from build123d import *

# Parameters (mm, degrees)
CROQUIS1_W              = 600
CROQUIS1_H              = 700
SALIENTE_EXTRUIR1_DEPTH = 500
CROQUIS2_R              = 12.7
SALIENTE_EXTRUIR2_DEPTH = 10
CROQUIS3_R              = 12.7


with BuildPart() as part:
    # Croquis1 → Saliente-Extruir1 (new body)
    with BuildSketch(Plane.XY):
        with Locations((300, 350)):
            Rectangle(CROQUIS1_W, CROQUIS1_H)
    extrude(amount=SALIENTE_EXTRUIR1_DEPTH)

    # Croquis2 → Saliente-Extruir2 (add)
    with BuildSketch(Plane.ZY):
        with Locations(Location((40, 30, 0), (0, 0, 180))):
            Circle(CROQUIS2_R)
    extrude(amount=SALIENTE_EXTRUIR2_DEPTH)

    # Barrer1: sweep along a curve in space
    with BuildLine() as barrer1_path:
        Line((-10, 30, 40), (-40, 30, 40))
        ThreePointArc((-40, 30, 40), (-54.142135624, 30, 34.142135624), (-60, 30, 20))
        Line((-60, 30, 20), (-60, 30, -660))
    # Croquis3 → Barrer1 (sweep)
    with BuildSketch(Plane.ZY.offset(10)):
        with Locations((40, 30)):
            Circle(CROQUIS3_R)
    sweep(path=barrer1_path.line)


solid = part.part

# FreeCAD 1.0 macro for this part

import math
import FreeCAD as App
import Part
import Sketcher
Q = App.Units.Quantity

doc = App.newDocument("Part")
params = doc.addObject("Spreadsheet::Sheet", "Params")
for row, (alias, value) in enumerate([
    ("sketch1_width", "600 mm"),
    ("sketch1_height", "700 mm"),
    ("pad1_length", "500 mm"),
    ("sketch2_diameter", "25.4 mm"),
    ("pad2_length", "10 mm"),
    ("sketch3_diameter", "25.4 mm"),
    ("sketch4_radius", "20 mm"),
    ("sketch4_width", "30 mm"),
    ("sketch4_height", "680 mm"),
], start=1):
    params.set(f"A{row}", alias)
    params.set(f"B{row}", "=" + value)
    params.setAlias(f"B{row}", alias)

body = doc.addObject("PartDesign::Body", "Body")

sketch1 = body.newObject("Sketcher::SketchObject", "Sketch")
sketch1.AttachmentSupport = (doc.getObject("XY_Plane"), [""])
sketch1.MapMode = "FlatFace"
sketch1.addGeometry([
    Part.LineSegment(App.Vector(0, 700, 0), App.Vector(0, 0, 0)),
    Part.LineSegment(App.Vector(0, 0, 0), App.Vector(600, 0, 0)),
    Part.LineSegment(App.Vector(600, 0, 0), App.Vector(600, 700, 0)),
    Part.LineSegment(App.Vector(600, 700, 0), App.Vector(0, 700, 0)),
], False)
sketch1.addConstraint([
    Sketcher.Constraint("Coincident", 0, 2, 1, 1),
    Sketcher.Constraint("Coincident", 1, 2, 2, 1),
    Sketcher.Constraint("Coincident", 2, 2, 3, 1),
    Sketcher.Constraint("Coincident", 3, 2, 0, 1),
    Sketcher.Constraint("Vertical", 0),
    Sketcher.Constraint("Horizontal", 1),
    Sketcher.Constraint("Vertical", 2),
    Sketcher.Constraint("Horizontal", 3),
    Sketcher.Constraint("Coincident", 0, 2, -1, 1),
    Sketcher.Constraint("DistanceX", 1, 1, 1, 2, Q("600 mm")),
    Sketcher.Constraint("DistanceY", 0, 2, 0, 1, Q("700 mm")),
])
sketch1.setExpression("Constraints[9]", "Params.sketch1_width")
sketch1.setExpression("Constraints[10]", "Params.sketch1_height")
pad1 = body.newObject("PartDesign::Pad", "Pad")
pad1.Profile = sketch1
pad1.setExpression("Length", "Params.pad1_length")

sketch2 = body.newObject("Sketcher::SketchObject", "Sketch001")
sketch2.AttachmentSupport = (doc.getObject("YZ_Plane"), [""])
sketch2.MapMode = "FlatFace"
sketch2.addGeometry(Part.Circle(App.Vector(30, 40, 0), App.Vector(0, 0, 1), 12.7), False)
sketch2.addConstraint([
    Sketcher.Constraint("Diameter", 0, Q("25.4 mm")),
    Sketcher.Constraint("DistanceX", -1, 1, 0, 3, Q("30 mm")),
    Sketcher.Constraint("DistanceY", -1, 1, 0, 3, Q("40 mm")),
])
sketch2.setExpression("Constraints[0]", "Params.sketch2_diameter")
pad2 = body.newObject("PartDesign::Pad", "Pad001")
pad2.Profile = sketch2
pad2.setExpression("Length", "Params.pad2_length")
pad2.Reversed = True

sketch3 = body.newObject("Sketcher::SketchObject", "Sketch002")
sketch3.AttachmentSupport = (doc.getObject("YZ_Plane"), [""])
sketch3.MapMode = "FlatFace"
sketch3.AttachmentOffset = App.Placement(App.Vector(0, 0, -10), App.Rotation())
sketch3.addGeometry(Part.Circle(App.Vector(30, 40, 0), App.Vector(0, 0, 1), 12.7), False)
sketch3.addConstraint([
    Sketcher.Constraint("Diameter", 0, Q("25.4 mm")),
    Sketcher.Constraint("DistanceX", -1, 1, 0, 3, Q("30 mm")),
    Sketcher.Constraint("DistanceY", -1, 1, 0, 3, Q("40 mm")),
])
sketch3.setExpression("Constraints[0]", "Params.sketch3_diameter")

sketch4 = body.newObject("Sketcher::SketchObject", "Sketch003")
sketch4.AttachmentSupport = (doc.getObject("XZ_Plane"), [""])
sketch4.MapMode = "FlatFace"
sketch4.AttachmentOffset = App.Placement(App.Vector(0, 0, -30), App.Rotation())
sketch4.addGeometry([
    Part.LineSegment(App.Vector(-10, 40, 0), App.Vector(-40, 40, 0)),
    Part.ArcOfCircle(Part.Circle(App.Vector(-40, 20, 0), App.Vector(0, 0, 1), 20), math.radians(90), math.radians(180)),
    Part.LineSegment(App.Vector(-60, 20, 0), App.Vector(-60, -660, 0)),
], False)
sketch4.addConstraint([
    Sketcher.Constraint("Tangent", 0, 2, 1, 1),
    Sketcher.Constraint("Tangent", 1, 2, 2, 1),
    Sketcher.Constraint("Horizontal", 0),
    Sketcher.Constraint("Vertical", 2),
    Sketcher.Constraint("Radius", 1, Q("20 mm")),
    Sketcher.Constraint("DistanceX", 0, 2, 0, 1, Q("30 mm")),
    Sketcher.Constraint("DistanceY", 2, 2, 2, 1, Q("680 mm")),
    Sketcher.Constraint("DistanceX", 1, 3, -1, 1, Q("40 mm")),
    Sketcher.Constraint("DistanceY", -1, 1, 1, 3, Q("20 mm")),
])
sketch4.setExpression("Constraints[4]", "Params.sketch4_radius")
sketch4.setExpression("Constraints[5]", "Params.sketch4_width")
sketch4.setExpression("Constraints[6]", "Params.sketch4_height")
doc.recompute()

additivepipe = body.newObject("PartDesign::AdditivePipe", "AdditivePipe")
additivepipe.Profile = sketch3
additivepipe.Spine = (sketch4, ["Edge1", "Edge2", "Edge3"])

doc.recompute()
